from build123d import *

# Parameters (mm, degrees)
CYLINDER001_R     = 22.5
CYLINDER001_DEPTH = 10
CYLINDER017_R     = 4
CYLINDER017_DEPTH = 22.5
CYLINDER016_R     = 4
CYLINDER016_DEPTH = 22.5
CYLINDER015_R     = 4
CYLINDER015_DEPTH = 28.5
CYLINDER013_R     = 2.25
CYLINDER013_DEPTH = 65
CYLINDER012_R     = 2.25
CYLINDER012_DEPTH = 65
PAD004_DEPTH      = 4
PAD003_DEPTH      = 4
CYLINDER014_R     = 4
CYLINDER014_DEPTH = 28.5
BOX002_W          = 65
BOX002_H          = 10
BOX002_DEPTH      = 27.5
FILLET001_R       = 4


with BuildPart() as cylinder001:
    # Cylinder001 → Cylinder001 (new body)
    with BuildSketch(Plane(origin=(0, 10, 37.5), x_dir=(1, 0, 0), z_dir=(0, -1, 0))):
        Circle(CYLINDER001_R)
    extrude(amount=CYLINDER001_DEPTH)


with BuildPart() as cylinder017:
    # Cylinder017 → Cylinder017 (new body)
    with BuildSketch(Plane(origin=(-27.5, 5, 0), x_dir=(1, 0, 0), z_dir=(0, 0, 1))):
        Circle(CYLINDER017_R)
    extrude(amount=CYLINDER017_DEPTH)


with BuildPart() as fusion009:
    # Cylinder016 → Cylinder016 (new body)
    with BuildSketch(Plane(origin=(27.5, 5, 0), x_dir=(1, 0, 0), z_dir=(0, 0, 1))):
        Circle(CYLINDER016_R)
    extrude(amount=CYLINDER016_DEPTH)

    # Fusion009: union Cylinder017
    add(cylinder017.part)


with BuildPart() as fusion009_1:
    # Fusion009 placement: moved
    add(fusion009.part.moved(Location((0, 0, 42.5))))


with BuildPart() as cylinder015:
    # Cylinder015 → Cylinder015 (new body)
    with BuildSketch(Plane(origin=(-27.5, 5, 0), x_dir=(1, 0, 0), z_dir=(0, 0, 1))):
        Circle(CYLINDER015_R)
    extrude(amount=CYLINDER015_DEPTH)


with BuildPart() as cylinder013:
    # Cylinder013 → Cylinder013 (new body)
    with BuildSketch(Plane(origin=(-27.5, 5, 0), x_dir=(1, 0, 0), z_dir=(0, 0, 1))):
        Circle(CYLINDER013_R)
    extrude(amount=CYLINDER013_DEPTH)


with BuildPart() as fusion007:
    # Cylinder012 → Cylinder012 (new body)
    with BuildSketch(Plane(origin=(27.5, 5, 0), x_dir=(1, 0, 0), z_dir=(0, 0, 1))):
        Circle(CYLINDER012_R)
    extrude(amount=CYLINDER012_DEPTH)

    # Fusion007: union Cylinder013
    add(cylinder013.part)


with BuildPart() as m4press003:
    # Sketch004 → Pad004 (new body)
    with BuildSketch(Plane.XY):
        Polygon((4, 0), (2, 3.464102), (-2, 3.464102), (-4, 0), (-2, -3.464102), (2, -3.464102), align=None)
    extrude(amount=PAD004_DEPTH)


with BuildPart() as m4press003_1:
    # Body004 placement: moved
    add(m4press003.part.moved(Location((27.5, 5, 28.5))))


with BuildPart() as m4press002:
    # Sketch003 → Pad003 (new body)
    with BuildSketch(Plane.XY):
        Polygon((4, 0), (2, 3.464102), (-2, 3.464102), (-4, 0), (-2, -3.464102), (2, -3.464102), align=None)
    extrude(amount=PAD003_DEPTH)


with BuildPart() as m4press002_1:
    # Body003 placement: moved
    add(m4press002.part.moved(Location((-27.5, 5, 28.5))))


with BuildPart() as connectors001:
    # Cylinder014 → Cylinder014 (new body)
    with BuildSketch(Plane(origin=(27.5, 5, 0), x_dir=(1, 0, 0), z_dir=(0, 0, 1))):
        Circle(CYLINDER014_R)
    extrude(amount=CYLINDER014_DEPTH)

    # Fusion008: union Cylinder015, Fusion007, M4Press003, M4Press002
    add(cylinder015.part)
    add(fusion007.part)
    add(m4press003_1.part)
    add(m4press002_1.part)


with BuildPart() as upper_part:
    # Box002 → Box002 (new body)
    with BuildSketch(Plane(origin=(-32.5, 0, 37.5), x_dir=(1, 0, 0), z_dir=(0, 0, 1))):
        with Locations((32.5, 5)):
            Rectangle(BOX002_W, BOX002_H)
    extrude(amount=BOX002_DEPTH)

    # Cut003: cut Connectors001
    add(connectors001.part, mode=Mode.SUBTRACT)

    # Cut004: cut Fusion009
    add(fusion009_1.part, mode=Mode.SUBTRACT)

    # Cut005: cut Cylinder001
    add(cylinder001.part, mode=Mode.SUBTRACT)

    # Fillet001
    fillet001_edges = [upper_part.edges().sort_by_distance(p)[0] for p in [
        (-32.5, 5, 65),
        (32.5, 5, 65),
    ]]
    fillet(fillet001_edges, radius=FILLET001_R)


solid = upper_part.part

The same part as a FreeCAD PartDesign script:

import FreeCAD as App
import Part
import Sketcher
from FreeCAD import Vector
Q = App.Units.Quantity


def edges_at(feature, points):
    """Names of the edges that pass closest to the given points."""
    edges = feature.Shape.Edges
    near = lambda p: min(range(len(edges)), key=lambda i: edges[i].distToShape(Part.Vertex(*p))[0])
    return sorted({f"Edge{near(p) + 1}" for p in points})

doc = App.newDocument("Part")
body = doc.addObject("PartDesign::Body", "Body")

sketch1 = body.newObject("Sketcher::SketchObject", "Sketch")
sketch1.AttachmentSupport = (doc.getObject("XZ_Plane"), [""])
sketch1.MapMode = "FlatFace"
sketch1.AttachmentOffset = App.Placement(Vector(0, 0, -10), App.Rotation())
sketch1.addGeometry(Part.Circle(Vector(0, 38, 0), Vector(0, 0, 1), 22), False)
sketch1.addConstraint(Sketcher.Constraint("PointOnObject", 0, 3, -2))
sketch1.addConstraint(Sketcher.Constraint("Diameter", 0, Q("45 mm")))
sketch1.addConstraint(Sketcher.Constraint("DistanceY", -1, 1, 0, 3, Q("37.5 mm")))
pad1 = body.newObject("PartDesign::Pad", "Pad")
pad1.Profile = sketch1
pad1.Length = 10
body2 = doc.addObject("PartDesign::Body", "Body001")

sketch2 = body2.newObject("Sketcher::SketchObject", "Sketch001")
sketch2.AttachmentSupport = (doc.getObject("XY_Plane001"), [""])
sketch2.MapMode = "FlatFace"
sketch2.addGeometry(Part.Circle(Vector(-27.5, 5, 0), Vector(0, 0, 1), 4), False)
sketch2.addConstraint(Sketcher.Constraint("Diameter", 0, Q("8 mm")))
sketch2.addConstraint(Sketcher.Constraint("DistanceY", -1, 1, 0, 3, Q("5 mm")))
sketch2.addConstraint(Sketcher.Constraint("DistanceX", 0, 3, -1, 1, Q("27.5 mm")))
pad2 = body2.newObject("PartDesign::Pad", "Pad001")
pad2.Profile = sketch2
pad2.Length = 22.5
body3 = doc.addObject("PartDesign::Body", "Body002")
body3.AllowCompound = True

sketch3 = body3.newObject("Sketcher::SketchObject", "Sketch002")
sketch3.AttachmentSupport = (doc.getObject("XY_Plane002"), [""])
sketch3.MapMode = "FlatFace"
sketch3.addGeometry(Part.Circle(Vector(27.5, 5, 0), Vector(0, 0, 1), 4), False)
sketch3.addConstraint(Sketcher.Constraint("Diameter", 0, Q("8 mm")))
sketch3.addConstraint(Sketcher.Constraint("DistanceY", -1, 1, 0, 3, Q("5 mm")))
sketch3.addConstraint(Sketcher.Constraint("DistanceX", -1, 1, 0, 3, Q("27.5 mm")))
pad3 = body3.newObject("PartDesign::Pad", "Pad002")
pad3.Profile = sketch3
pad3.Length = 22.5
doc.recompute()

boolean = body3.newObject("PartDesign::Boolean", "Boolean")
boolean.Type = "Fuse"
boolean.addObjects([body2])
body4 = doc.addObject("PartDesign::Body", "Body003")
body4.AllowCompound = True
doc.recompute()

body3.Placement = App.Placement(Vector(0, 0, 42.5), App.Rotation(Vector(0, 0, 1), 0))
boolean2 = body4.newObject("PartDesign::Boolean", "Boolean001")
boolean2.Type = "Fuse"
boolean2.addObjects([body3])
body5 = doc.addObject("PartDesign::Body", "Body004")

sketch4 = body5.newObject("Sketcher::SketchObject", "Sketch003")
sketch4.AttachmentSupport = (doc.getObject("XY_Plane004"), [""])
sketch4.MapMode = "FlatFace"
sketch4.addGeometry(Part.Circle(Vector(-27.5, 5, 0), Vector(0, 0, 1), 4), False)
sketch4.addConstraint(Sketcher.Constraint("Diameter", 0, Q("8 mm")))
sketch4.addConstraint(Sketcher.Constraint("DistanceY", -1, 1, 0, 3, Q("5 mm")))
sketch4.addConstraint(Sketcher.Constraint("DistanceX", 0, 3, -1, 1, Q("27.5 mm")))
pad4 = body5.newObject("PartDesign::Pad", "Pad003")
pad4.Profile = sketch4
pad4.Length = 28.5
body6 = doc.addObject("PartDesign::Body", "Body005")

sketch5 = body6.newObject("Sketcher::SketchObject", "Sketch004")
sketch5.AttachmentSupport = (doc.getObject("XY_Plane005"), [""])
sketch5.MapMode = "FlatFace"
sketch5.addGeometry(Part.Circle(Vector(-27.5, 5, 0), Vector(0, 0, 1), 2.2), False)
sketch5.addConstraint(Sketcher.Constraint("Diameter", 0, Q("4.5 mm")))
sketch5.addConstraint(Sketcher.Constraint("DistanceY", -1, 1, 0, 3, Q("5 mm")))
sketch5.addConstraint(Sketcher.Constraint("DistanceX", 0, 3, -1, 1, Q("27.5 mm")))
pad5 = body6.newObject("PartDesign::Pad", "Pad004")
pad5.Profile = sketch5
pad5.Length = 65
body7 = doc.addObject("PartDesign::Body", "Body006")
body7.AllowCompound = True

sketch6 = body7.newObject("Sketcher::SketchObject", "Sketch005")
sketch6.AttachmentSupport = (doc.getObject("XY_Plane006"), [""])
sketch6.MapMode = "FlatFace"
sketch6.addGeometry(Part.Circle(Vector(27.5, 5, 0), Vector(0, 0, 1), 2.2), False)
sketch6.addConstraint(Sketcher.Constraint("Diameter", 0, Q("4.5 mm")))
sketch6.addConstraint(Sketcher.Constraint("DistanceY", -1, 1, 0, 3, Q("5 mm")))
sketch6.addConstraint(Sketcher.Constraint("DistanceX", -1, 1, 0, 3, Q("27.5 mm")))
pad6 = body7.newObject("PartDesign::Pad", "Pad005")
pad6.Profile = sketch6
pad6.Length = 65
doc.recompute()

boolean3 = body7.newObject("PartDesign::Boolean", "Boolean002")
boolean3.Type = "Fuse"
boolean3.addObjects([body6])
body8 = doc.addObject("PartDesign::Body", "Body007")

sketch7 = body8.newObject("Sketcher::SketchObject", "Sketch006")
sketch7.AttachmentSupport = (doc.getObject("XY_Plane007"), [""])
sketch7.MapMode = "FlatFace"
sketch7.addGeometry(Part.LineSegment(Vector(4, 0, 0), Vector(2, 3.5, 0)), False)
sketch7.addGeometry(Part.LineSegment(Vector(2, 3.5, 0), Vector(-2, 3.5, 0)), False)
sketch7.addGeometry(Part.LineSegment(Vector(-2, 3.5, 0), Vector(-4, 0, 0)), False)
sketch7.addGeometry(Part.LineSegment(Vector(-4, 0, 0), Vector(-2, -3.5, 0)), False)
sketch7.addGeometry(Part.LineSegment(Vector(-2, -3.5, 0), Vector(2, -3.5, 0)), False)
sketch7.addGeometry(Part.LineSegment(Vector(2, -3.5, 0), Vector(4, 0, 0)), False)
sketch7.addConstraint(Sketcher.Constraint("Coincident", 0, 2, 1, 1))
sketch7.addConstraint(Sketcher.Constraint("Coincident", 1, 2, 2, 1))
sketch7.addConstraint(Sketcher.Constraint("Coincident", 2, 2, 3, 1))
sketch7.addConstraint(Sketcher.Constraint("Coincident", 3, 2, 4, 1))
sketch7.addConstraint(Sketcher.Constraint("Coincident", 4, 2, 5, 1))
sketch7.addConstraint(Sketcher.Constraint("Coincident", 5, 2, 0, 1))
sketch7.addConstraint(Sketcher.Constraint("Horizontal", 1))
sketch7.addConstraint(Sketcher.Constraint("Horizontal", 4))
sketch7.addConstraint(Sketcher.Constraint("Symmetric", 0, 2, 3, 2, -1, 1))
sketch7.addConstraint(Sketcher.Constraint("Symmetric", 2, 2, 5, 2, -1, 1))
sketch7.addConstraint(Sketcher.Constraint("PointOnObject", 2, 2, -1))
sketch7.addConstraint(Sketcher.Constraint("Parallel", 2, 5))
sketch7.addConstraint(Sketcher.Constraint("Vertical", 1, 2, 3, 2))
sketch7.addConstraint(Sketcher.Constraint("DistanceX", 1, 2, 1, 1, Q("4 mm")))
sketch7.addConstraint(Sketcher.Constraint("Angle", 0, Q("119.999997 deg")))
sketch7.addConstraint(Sketcher.Constraint("Distance", 0, Q("4 mm")))
pad7 = body8.newObject("PartDesign::Pad", "Pad006")
pad7.Profile = sketch7
pad7.Length = 4
body9 = doc.addObject("PartDesign::Body", "Body008")
doc.recompute()

body8.Placement = App.Placement(Vector(27.5, 5, 28.5), App.Rotation(Vector(0, 0, 1), 0))
boolean4 = body9.newObject("PartDesign::Boolean", "Boolean003")
boolean4.Type = "Fuse"
boolean4.addObjects([body8])
body10 = doc.addObject("PartDesign::Body", "Body009")

sketch8 = body10.newObject("Sketcher::SketchObject", "Sketch007")
sketch8.AttachmentSupport = (doc.getObject("XY_Plane009"), [""])
sketch8.MapMode = "FlatFace"
sketch8.addGeometry(Part.LineSegment(Vector(4, 0, 0), Vector(2, 3.5, 0)), False)
sketch8.addGeometry(Part.LineSegment(Vector(2, 3.5, 0), Vector(-2, 3.5, 0)), False)
sketch8.addGeometry(Part.LineSegment(Vector(-2, 3.5, 0), Vector(-4, 0, 0)), False)
sketch8.addGeometry(Part.LineSegment(Vector(-4, 0, 0), Vector(-2, -3.5, 0)), False)
sketch8.addGeometry(Part.LineSegment(Vector(-2, -3.5, 0), Vector(2, -3.5, 0)), False)
sketch8.addGeometry(Part.LineSegment(Vector(2, -3.5, 0), Vector(4, 0, 0)), False)
sketch8.addConstraint(Sketcher.Constraint("Coincident", 0, 2, 1, 1))
sketch8.addConstraint(Sketcher.Constraint("Coincident", 1, 2, 2, 1))
sketch8.addConstraint(Sketcher.Constraint("Coincident", 2, 2, 3, 1))
sketch8.addConstraint(Sketcher.Constraint("Coincident", 3, 2, 4, 1))
sketch8.addConstraint(Sketcher.Constraint("Coincident", 4, 2, 5, 1))
sketch8.addConstraint(Sketcher.Constraint("Coincident", 5, 2, 0, 1))
sketch8.addConstraint(Sketcher.Constraint("Horizontal", 1))
sketch8.addConstraint(Sketcher.Constraint("Horizontal", 4))
sketch8.addConstraint(Sketcher.Constraint("Symmetric", 0, 2, 3, 2, -1, 1))
sketch8.addConstraint(Sketcher.Constraint("Symmetric", 2, 2, 5, 2, -1, 1))
sketch8.addConstraint(Sketcher.Constraint("PointOnObject", 2, 2, -1))
sketch8.addConstraint(Sketcher.Constraint("Parallel", 2, 5))
sketch8.addConstraint(Sketcher.Constraint("Vertical", 1, 2, 3, 2))
sketch8.addConstraint(Sketcher.Constraint("DistanceX", 1, 2, 1, 1, Q("4 mm")))
sketch8.addConstraint(Sketcher.Constraint("Angle", 0, Q("119.999997 deg")))
sketch8.addConstraint(Sketcher.Constraint("Distance", 0, Q("4 mm")))
pad8 = body10.newObject("PartDesign::Pad", "Pad007")
pad8.Profile = sketch8
pad8.Length = 4
body11 = doc.addObject("PartDesign::Body", "Body010")
doc.recompute()

body10.Placement = App.Placement(Vector(-27.5, 5, 28.5), App.Rotation(Vector(0, 0, 1), 0))
boolean5 = body11.newObject("PartDesign::Boolean", "Boolean004")
boolean5.Type = "Fuse"
boolean5.addObjects([body10])
body12 = doc.addObject("PartDesign::Body", "Body011")
body12.AllowCompound = True

sketch9 = body12.newObject("Sketcher::SketchObject", "Sketch008")
sketch9.AttachmentSupport = (doc.getObject("XY_Plane011"), [""])
sketch9.MapMode = "FlatFace"
sketch9.addGeometry(Part.Circle(Vector(27.5, 5, 0), Vector(0, 0, 1), 4), False)
sketch9.addConstraint(Sketcher.Constraint("Diameter", 0, Q("8 mm")))
sketch9.addConstraint(Sketcher.Constraint("DistanceY", -1, 1, 0, 3, Q("5 mm")))
sketch9.addConstraint(Sketcher.Constraint("DistanceX", -1, 1, 0, 3, Q("27.5 mm")))
pad9 = body12.newObject("PartDesign::Pad", "Pad008")
pad9.Profile = sketch9
pad9.Length = 28.5
doc.recompute()

boolean6 = body12.newObject("PartDesign::Boolean", "Boolean005")
boolean6.Type = "Fuse"
boolean6.addObjects([body5])
doc.recompute()

boolean7 = body12.newObject("PartDesign::Boolean", "Boolean006")
boolean7.Type = "Fuse"
boolean7.addObjects([body7])
doc.recompute()

boolean8 = body12.newObject("PartDesign::Boolean", "Boolean007")
boolean8.Type = "Fuse"
boolean8.addObjects([body9])
doc.recompute()

boolean9 = body12.newObject("PartDesign::Boolean", "Boolean008")
boolean9.Type = "Fuse"
boolean9.addObjects([body11])
body13 = doc.addObject("PartDesign::Body", "Body012")

sketch10 = body13.newObject("Sketcher::SketchObject", "Sketch009")
sketch10.AttachmentSupport = (doc.getObject("XY_Plane012"), [""])
sketch10.MapMode = "FlatFace"
sketch10.AttachmentOffset = App.Placement(Vector(0, 0, 37.5), App.Rotation())
sketch10.addGeometry(Part.LineSegment(Vector(-32, 10, 0), Vector(-32, 0, 0)), False)
sketch10.addGeometry(Part.LineSegment(Vector(-32, 0, 0), Vector(32, 0, 0)), False)
sketch10.addGeometry(Part.LineSegment(Vector(32, 0, 0), Vector(32, 10, 0)), False)
sketch10.addGeometry(Part.LineSegment(Vector(32, 10, 0), Vector(-32, 10, 0)), False)
sketch10.addConstraint(Sketcher.Constraint("Coincident", 0, 2, 1, 1))
sketch10.addConstraint(Sketcher.Constraint("Coincident", 1, 2, 2, 1))
sketch10.addConstraint(Sketcher.Constraint("Coincident", 2, 2, 3, 1))
sketch10.addConstraint(Sketcher.Constraint("Coincident", 3, 2, 0, 1))
sketch10.addConstraint(Sketcher.Constraint("Vertical", 0))
sketch10.addConstraint(Sketcher.Constraint("Horizontal", 1))
sketch10.addConstraint(Sketcher.Constraint("Vertical", 2))
sketch10.addConstraint(Sketcher.Constraint("Horizontal", 3))
sketch10.addConstraint(Sketcher.Constraint("Symmetric", 0, 2, 1, 2, -1, 1))
sketch10.addConstraint(Sketcher.Constraint("DistanceX", 1, 1, 1, 2, Q("65 mm")))
sketch10.addConstraint(Sketcher.Constraint("DistanceY", 0, 2, 0, 1, Q("10 mm")))
pad10 = body13.newObject("PartDesign::Pad", "Pad009")
pad10.Profile = sketch10
pad10.Length = 27.5
doc.recompute()

boolean10 = body13.newObject("PartDesign::Boolean", "Boolean009")
boolean10.Type = "Cut"
boolean10.addObjects([body12])
doc.recompute()

boolean11 = body13.newObject("PartDesign::Boolean", "Boolean010")
boolean11.Type = "Cut"
boolean11.addObjects([body4])
doc.recompute()

boolean12 = body13.newObject("PartDesign::Boolean", "Boolean011")
boolean12.Type = "Cut"
boolean12.addObjects([body])
doc.recompute()

fillet = body13.newObject("PartDesign::Fillet", "Fillet")
fillet.Base = (boolean12, edges_at(boolean12, [(-32.5, 5, 65), (32.5, 5, 65)]))
fillet.Radius = 4

doc.recompute()
